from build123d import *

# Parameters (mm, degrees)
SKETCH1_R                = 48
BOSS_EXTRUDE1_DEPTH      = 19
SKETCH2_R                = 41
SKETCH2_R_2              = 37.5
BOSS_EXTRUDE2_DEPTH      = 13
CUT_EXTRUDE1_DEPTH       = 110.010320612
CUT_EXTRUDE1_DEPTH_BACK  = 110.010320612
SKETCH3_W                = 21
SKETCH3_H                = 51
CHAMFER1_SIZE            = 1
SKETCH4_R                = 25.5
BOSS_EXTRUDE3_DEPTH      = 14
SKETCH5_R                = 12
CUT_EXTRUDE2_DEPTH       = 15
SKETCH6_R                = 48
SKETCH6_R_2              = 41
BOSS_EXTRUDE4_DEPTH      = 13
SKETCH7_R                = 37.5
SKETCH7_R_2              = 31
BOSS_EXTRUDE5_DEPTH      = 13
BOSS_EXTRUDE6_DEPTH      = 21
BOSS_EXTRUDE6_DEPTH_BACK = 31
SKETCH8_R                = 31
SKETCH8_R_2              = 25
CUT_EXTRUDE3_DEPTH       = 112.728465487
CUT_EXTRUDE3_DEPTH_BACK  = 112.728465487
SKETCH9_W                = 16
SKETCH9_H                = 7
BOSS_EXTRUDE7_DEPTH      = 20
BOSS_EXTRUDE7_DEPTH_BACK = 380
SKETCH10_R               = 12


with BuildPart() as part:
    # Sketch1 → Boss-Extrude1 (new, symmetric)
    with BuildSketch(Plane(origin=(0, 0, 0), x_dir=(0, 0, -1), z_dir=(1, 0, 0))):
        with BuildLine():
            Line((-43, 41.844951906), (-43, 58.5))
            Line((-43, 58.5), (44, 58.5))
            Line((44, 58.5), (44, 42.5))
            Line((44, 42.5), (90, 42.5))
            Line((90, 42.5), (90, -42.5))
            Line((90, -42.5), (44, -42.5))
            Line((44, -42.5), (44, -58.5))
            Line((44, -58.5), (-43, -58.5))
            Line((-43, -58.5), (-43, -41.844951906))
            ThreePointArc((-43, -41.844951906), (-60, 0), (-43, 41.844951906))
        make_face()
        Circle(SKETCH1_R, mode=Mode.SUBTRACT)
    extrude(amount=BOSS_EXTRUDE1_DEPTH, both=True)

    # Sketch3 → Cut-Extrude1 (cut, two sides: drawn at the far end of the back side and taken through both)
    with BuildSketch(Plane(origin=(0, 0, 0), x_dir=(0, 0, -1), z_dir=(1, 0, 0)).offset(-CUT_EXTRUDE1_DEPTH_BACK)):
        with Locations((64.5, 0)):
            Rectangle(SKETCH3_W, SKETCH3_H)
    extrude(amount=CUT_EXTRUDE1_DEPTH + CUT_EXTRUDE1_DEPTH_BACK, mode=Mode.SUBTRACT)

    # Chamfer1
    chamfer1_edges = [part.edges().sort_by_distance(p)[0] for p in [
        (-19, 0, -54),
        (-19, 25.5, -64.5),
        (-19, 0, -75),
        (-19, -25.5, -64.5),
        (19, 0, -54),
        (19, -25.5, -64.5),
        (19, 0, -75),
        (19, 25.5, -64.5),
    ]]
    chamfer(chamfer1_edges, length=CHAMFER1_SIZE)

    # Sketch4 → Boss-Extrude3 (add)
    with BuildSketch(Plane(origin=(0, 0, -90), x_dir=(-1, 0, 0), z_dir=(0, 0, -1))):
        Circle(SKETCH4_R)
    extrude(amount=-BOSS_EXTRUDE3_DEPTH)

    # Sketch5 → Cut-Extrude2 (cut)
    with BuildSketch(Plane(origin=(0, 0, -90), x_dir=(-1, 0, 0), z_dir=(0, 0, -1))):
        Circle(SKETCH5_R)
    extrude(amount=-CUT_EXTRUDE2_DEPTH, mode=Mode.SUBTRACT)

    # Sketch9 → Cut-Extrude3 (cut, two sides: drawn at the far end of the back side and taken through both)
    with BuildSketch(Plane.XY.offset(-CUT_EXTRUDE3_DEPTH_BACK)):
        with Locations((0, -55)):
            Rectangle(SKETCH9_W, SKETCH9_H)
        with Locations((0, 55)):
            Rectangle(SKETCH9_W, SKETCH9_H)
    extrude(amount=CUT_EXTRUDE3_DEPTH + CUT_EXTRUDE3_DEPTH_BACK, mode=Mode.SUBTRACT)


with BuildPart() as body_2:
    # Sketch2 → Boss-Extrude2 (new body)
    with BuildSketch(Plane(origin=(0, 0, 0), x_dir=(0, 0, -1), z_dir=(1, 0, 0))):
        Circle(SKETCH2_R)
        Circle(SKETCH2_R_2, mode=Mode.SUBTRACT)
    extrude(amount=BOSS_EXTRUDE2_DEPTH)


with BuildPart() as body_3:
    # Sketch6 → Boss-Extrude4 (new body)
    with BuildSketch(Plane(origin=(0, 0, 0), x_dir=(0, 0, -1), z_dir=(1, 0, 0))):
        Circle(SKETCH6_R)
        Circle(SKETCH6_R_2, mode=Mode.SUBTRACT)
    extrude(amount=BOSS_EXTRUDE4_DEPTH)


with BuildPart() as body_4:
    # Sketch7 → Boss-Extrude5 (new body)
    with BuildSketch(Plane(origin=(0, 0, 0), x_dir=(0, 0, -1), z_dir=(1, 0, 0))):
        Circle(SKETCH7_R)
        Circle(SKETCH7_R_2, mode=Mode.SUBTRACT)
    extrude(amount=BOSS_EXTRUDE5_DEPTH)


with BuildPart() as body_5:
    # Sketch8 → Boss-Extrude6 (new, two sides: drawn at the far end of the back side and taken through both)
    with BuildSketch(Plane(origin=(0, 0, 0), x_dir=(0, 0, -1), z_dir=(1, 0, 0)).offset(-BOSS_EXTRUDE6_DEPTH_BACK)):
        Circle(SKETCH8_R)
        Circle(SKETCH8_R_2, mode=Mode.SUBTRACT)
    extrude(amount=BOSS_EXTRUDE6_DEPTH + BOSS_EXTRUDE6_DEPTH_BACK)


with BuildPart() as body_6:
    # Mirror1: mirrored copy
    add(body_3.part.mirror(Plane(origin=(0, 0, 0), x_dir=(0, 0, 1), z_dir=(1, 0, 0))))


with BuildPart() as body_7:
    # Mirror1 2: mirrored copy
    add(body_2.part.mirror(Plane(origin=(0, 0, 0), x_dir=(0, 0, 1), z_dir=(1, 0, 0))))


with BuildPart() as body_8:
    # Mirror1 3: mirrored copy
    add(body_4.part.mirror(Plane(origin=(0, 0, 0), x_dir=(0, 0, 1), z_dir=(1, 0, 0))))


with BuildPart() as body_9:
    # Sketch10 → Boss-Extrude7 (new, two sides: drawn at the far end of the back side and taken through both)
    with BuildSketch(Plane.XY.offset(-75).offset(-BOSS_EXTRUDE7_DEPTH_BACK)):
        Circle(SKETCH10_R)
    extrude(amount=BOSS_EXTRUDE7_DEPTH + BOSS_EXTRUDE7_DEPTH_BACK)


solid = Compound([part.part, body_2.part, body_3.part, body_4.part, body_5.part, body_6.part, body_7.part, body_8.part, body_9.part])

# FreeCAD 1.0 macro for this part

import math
import FreeCAD as App
import Part
import Sketcher
Q = App.Units.Quantity


def edges_at(feature, points):
    """Names of the edges that pass closest to the given points."""
    edges = feature.Shape.Edges
    near = lambda p: min(range(len(edges)), key=lambda i: edges[i].distToShape(Part.Vertex(*p))[0])
    return sorted({f"Edge{near(p) + 1}" for p in points})

doc = App.newDocument("Part")
body = doc.addObject("PartDesign::Body", "Body")

# Sketch on YZ plane
sketch1 = body.newObject("Sketcher::SketchObject", "Sketch")
sketch1.AttachmentSupport = (doc.getObject("YZ_Plane"), [""])
sketch1.MapMode = "FlatFace"
sketch1.addGeometry(Part.LineSegment(App.Vector(58, 43, 0), App.Vector(42, 43, 0)), False)
sketch1.addGeometry(Part.ArcOfCircle(Part.Circle(App.Vector(0, 0, 0), App.Vector(0, 0, 1), 60), math.radians(46), math.radians(134)), False)
sketch1.addGeometry(Part.LineSegment(App.Vector(-42, 43, 0), App.Vector(-58, 43, 0)), False)
sketch1.addGeometry(Part.LineSegment(App.Vector(-58, 43, 0), App.Vector(-58, -44, 0)), False)
sketch1.addGeometry(Part.LineSegment(App.Vector(-58, -44, 0), App.Vector(-42, -44, 0)), False)
sketch1.addGeometry(Part.LineSegment(App.Vector(-42, -44, 0), App.Vector(-42, -90, 0)), False)
sketch1.addGeometry(Part.LineSegment(App.Vector(-42, -90, 0), App.Vector(42, -90, 0)), False)
sketch1.addGeometry(Part.LineSegment(App.Vector(42, -90, 0), App.Vector(42, -44, 0)), False)
sketch1.addGeometry(Part.LineSegment(App.Vector(42, -44, 0), App.Vector(58, -44, 0)), False)
sketch1.addGeometry(Part.LineSegment(App.Vector(58, -44, 0), App.Vector(58, 43, 0)), False)
sketch1.addGeometry(Part.Circle(App.Vector(0, 0, 0), App.Vector(0, 0, 1), 48), False)
sketch1.addConstraint(Sketcher.Constraint("Coincident", 0, 2, 1, 1))
sketch1.addConstraint(Sketcher.Constraint("Coincident", 1, 2, 2, 1))
sketch1.addConstraint(Sketcher.Constraint("Coincident", 2, 2, 3, 1))
sketch1.addConstraint(Sketcher.Constraint("Coincident", 3, 2, 4, 1))
sketch1.addConstraint(Sketcher.Constraint("Coincident", 4, 2, 5, 1))
sketch1.addConstraint(Sketcher.Constraint("Coincident", 5, 2, 6, 1))
sketch1.addConstraint(Sketcher.Constraint("Coincident", 6, 2, 7, 1))
sketch1.addConstraint(Sketcher.Constraint("Coincident", 7, 2, 8, 1))
sketch1.addConstraint(Sketcher.Constraint("Coincident", 8, 2, 9, 1))
sketch1.addConstraint(Sketcher.Constraint("Coincident", 9, 2, 0, 1))
sketch1.addConstraint(Sketcher.Constraint("Horizontal", 0))
sketch1.addConstraint(Sketcher.Constraint("Horizontal", 2))
sketch1.addConstraint(Sketcher.Constraint("Vertical", 3))
sketch1.addConstraint(Sketcher.Constraint("Horizontal", 4))
sketch1.addConstraint(Sketcher.Constraint("Vertical", 5))
sketch1.addConstraint(Sketcher.Constraint("Horizontal", 6))
sketch1.addConstraint(Sketcher.Constraint("Vertical", 7))
sketch1.addConstraint(Sketcher.Constraint("Horizontal", 8))
sketch1.addConstraint(Sketcher.Constraint("Vertical", 9))
sketch1.addConstraint(Sketcher.Constraint("Coincident", 1, 3, -1, 1))
sketch1.addConstraint(Sketcher.Constraint("Coincident", 10, 3, -1, 1))
sketch1.addConstraint(Sketcher.Constraint("Symmetric", 4, 2, 7, 2, -2))
sketch1.addConstraint(Sketcher.Constraint("Symmetric", 2, 2, 9, 2, -2))
sketch1.addConstraint(Sketcher.Constraint("Diameter", 10, Q("96 mm")))
sketch1.addConstraint(Sketcher.Constraint("Radius", 1, Q("60 mm")))
sketch1.addConstraint(Sketcher.Constraint("DistanceX", 4, 1, 4, 2, Q("16 mm")))
sketch1.addConstraint(Sketcher.Constraint("DistanceX", 6, 1, 6, 2, Q("85 mm")))
sketch1.addConstraint(Sketcher.Constraint("DistanceY", 3, 2, 3, 1, Q("87 mm")))
sketch1.addConstraint(Sketcher.Constraint("DistanceY", 5, 2, 5, 1, Q("46 mm")))
sketch1.addConstraint(Sketcher.Constraint("DistanceY", -1, 1, 0, 2, Q("43 mm")))
pad1 = body.newObject("PartDesign::Pad", "Pad")
pad1.Profile = sketch1
pad1.Length = 38
pad1.Midplane = True

# Sketch on YZ plane
sketch2 = body.newObject("Sketcher::SketchObject", "Sketch001")
sketch2.AttachmentSupport = (doc.getObject("YZ_Plane"), [""])
sketch2.MapMode = "FlatFace"
sketch2.addGeometry(Part.LineSegment(App.Vector(26, -54, 0), App.Vector(-26, -54, 0)), False)
sketch2.addGeometry(Part.LineSegment(App.Vector(-26, -54, 0), App.Vector(-26, -75, 0)), False)
sketch2.addGeometry(Part.LineSegment(App.Vector(-26, -75, 0), App.Vector(26, -75, 0)), False)
sketch2.addGeometry(Part.LineSegment(App.Vector(26, -75, 0), App.Vector(26, -54, 0)), False)
sketch2.addConstraint(Sketcher.Constraint("Coincident", 0, 2, 1, 1))
sketch2.addConstraint(Sketcher.Constraint("Coincident", 1, 2, 2, 1))
sketch2.addConstraint(Sketcher.Constraint("Coincident", 2, 2, 3, 1))
sketch2.addConstraint(Sketcher.Constraint("Coincident", 3, 2, 0, 1))
sketch2.addConstraint(Sketcher.Constraint("Horizontal", 0))
sketch2.addConstraint(Sketcher.Constraint("Vertical", 1))
sketch2.addConstraint(Sketcher.Constraint("Horizontal", 2))
sketch2.addConstraint(Sketcher.Constraint("Vertical", 3))
sketch2.addConstraint(Sketcher.Constraint("DistanceX", 0, 2, 0, 1, Q("51 mm")))
sketch2.addConstraint(Sketcher.Constraint("DistanceY", 1, 2, 1, 1, Q("21 mm")))
sketch2.addConstraint(Sketcher.Constraint("DistanceY", 0, 2, -1, 1, Q("54 mm")))
sketch2.addConstraint(Sketcher.Constraint("DistanceX", 0, 2, -1, 1, Q("25.5 mm")))
pocket1 = body.newObject("PartDesign::Pocket", "Pocket")
pocket1.Profile = sketch2
pocket1.Type = "ThroughAll"
pocket1.Midplane = True
doc.recompute()

chamfer = body.newObject("PartDesign::Chamfer", "Chamfer")
chamfer.Base = (pocket1, edges_at(pocket1, [
    (-19, 0, -54),
    (-19, 25.5, -64.5),
    (-19, 0, -75),
    (-19, -25.5, -64.5),
    (19, 0, -54),
    (19, -25.5, -64.5),
    (19, 0, -75),
    (19, 25.5, -64.5),
]))
chamfer.Size = 1

# Sketch on XY plane
sketch3 = body.newObject("Sketcher::SketchObject", "Sketch002")
sketch3.AttachmentSupport = (doc.getObject("XY_Plane"), [""])
sketch3.MapMode = "FlatFace"
sketch3.AttachmentOffset = App.Placement(App.Vector(0, 0, -90), App.Rotation())
sketch3.addGeometry(Part.Circle(App.Vector(0, 0, 0), App.Vector(0, 0, 1), 26), False)
sketch3.addConstraint(Sketcher.Constraint("Coincident", 0, 3, -1, 1))
sketch3.addConstraint(Sketcher.Constraint("Diameter", 0, Q("51 mm")))
pad2 = body.newObject("PartDesign::Pad", "Pad001")
pad2.Profile = sketch3
pad2.Length = 14

# Sketch on XY plane
sketch4 = body.newObject("Sketcher::SketchObject", "Sketch003")
sketch4.AttachmentSupport = (doc.getObject("XY_Plane"), [""])
sketch4.MapMode = "FlatFace"
sketch4.AttachmentOffset = App.Placement(App.Vector(0, 0, -90), App.Rotation())
sketch4.addGeometry(Part.Circle(App.Vector(0, 0, 0), App.Vector(0, 0, 1), 12), False)
sketch4.addConstraint(Sketcher.Constraint("Coincident", 0, 3, -1, 1))
sketch4.addConstraint(Sketcher.Constraint("Diameter", 0, Q("24 mm")))
pocket2 = body.newObject("PartDesign::Pocket", "Pocket001")
pocket2.Profile = sketch4
pocket2.Length = 15
pocket2.Reversed = True

# Sketch on XY plane
sketch5 = body.newObject("Sketcher::SketchObject", "Sketch004")
sketch5.AttachmentSupport = (doc.getObject("XY_Plane"), [""])
sketch5.MapMode = "FlatFace"
sketch5.addGeometry(Part.LineSegment(App.Vector(-8, -52, 0), App.Vector(-8, -58, 0)), False)
sketch5.addGeometry(Part.LineSegment(App.Vector(-8, -58, 0), App.Vector(8, -58, 0)), False)
sketch5.addGeometry(Part.LineSegment(App.Vector(8, -58, 0), App.Vector(8, -52, 0)), False)
sketch5.addGeometry(Part.LineSegment(App.Vector(8, -52, 0), App.Vector(-8, -52, 0)), False)
sketch5.addGeometry(Part.LineSegment(App.Vector(-8, 58, 0), App.Vector(-8, 52, 0)), False)
sketch5.addGeometry(Part.LineSegment(App.Vector(-8, 52, 0), App.Vector(8, 52, 0)), False)
sketch5.addGeometry(Part.LineSegment(App.Vector(8, 52, 0), App.Vector(8, 58, 0)), False)
sketch5.addGeometry(Part.LineSegment(App.Vector(8, 58, 0), App.Vector(-8, 58, 0)), False)
sketch5.addConstraint(Sketcher.Constraint("Coincident", 0, 2, 1, 1))
sketch5.addConstraint(Sketcher.Constraint("Coincident", 1, 2, 2, 1))
sketch5.addConstraint(Sketcher.Constraint("Coincident", 2, 2, 3, 1))
sketch5.addConstraint(Sketcher.Constraint("Coincident", 3, 2, 0, 1))
sketch5.addConstraint(Sketcher.Constraint("Coincident", 4, 2, 5, 1))
sketch5.addConstraint(Sketcher.Constraint("Coincident", 5, 2, 6, 1))
sketch5.addConstraint(Sketcher.Constraint("Coincident", 6, 2, 7, 1))
sketch5.addConstraint(Sketcher.Constraint("Coincident", 7, 2, 4, 1))
sketch5.addConstraint(Sketcher.Constraint("Vertical", 0))
sketch5.addConstraint(Sketcher.Constraint("Horizontal", 1))
sketch5.addConstraint(Sketcher.Constraint("Vertical", 2))
sketch5.addConstraint(Sketcher.Constraint("Horizontal", 3))
sketch5.addConstraint(Sketcher.Constraint("Vertical", 4))
sketch5.addConstraint(Sketcher.Constraint("Horizontal", 5))
sketch5.addConstraint(Sketcher.Constraint("Vertical", 6))
sketch5.addConstraint(Sketcher.Constraint("Horizontal", 7))
sketch5.addConstraint(Sketcher.Constraint("Symmetric", 2, 2, 4, 2, -1, 1))
sketch5.addConstraint(Sketcher.Constraint("Symmetric", 0, 2, 6, 2, -1, 1))
sketch5.addConstraint(Sketcher.Constraint("Vertical", 3, 2, 4, 2))
sketch5.addConstraint(Sketcher.Constraint("DistanceX", 1, 1, 1, 2, Q("16 mm")))
sketch5.addConstraint(Sketcher.Constraint("DistanceY", 0, 2, 0, 1, Q("7 mm")))
sketch5.addConstraint(Sketcher.Constraint("DistanceY", 3, 2, 4, 2, Q("103 mm")))
pocket3 = body.newObject("PartDesign::Pocket", "Pocket002")
pocket3.Profile = sketch5
pocket3.Type = "ThroughAll"
pocket3.Midplane = True
body2 = doc.addObject("PartDesign::Body", "Body001")

# Sketch on YZ plane
sketch6 = body2.newObject("Sketcher::SketchObject", "Sketch005")
sketch6.AttachmentSupport = (doc.getObject("YZ_Plane001"), [""])
sketch6.MapMode = "FlatFace"
sketch6.addGeometry(Part.Circle(App.Vector(0, 0, 0), App.Vector(0, 0, 1), 41), False)
sketch6.addGeometry(Part.Circle(App.Vector(0, 0, 0), App.Vector(0, 0, 1), 38), False)
sketch6.addConstraint(Sketcher.Constraint("Coincident", 0, 3, -1, 1))
sketch6.addConstraint(Sketcher.Constraint("Coincident", 1, 3, -1, 1))
sketch6.addConstraint(Sketcher.Constraint("Diameter", 0, Q("82 mm")))
sketch6.addConstraint(Sketcher.Constraint("Diameter", 1, Q("75 mm")))
pad3 = body2.newObject("PartDesign::Pad", "Pad002")
pad3.Profile = sketch6
pad3.Length = 13
body3 = doc.addObject("PartDesign::Body", "Body002")

# Sketch on YZ plane
sketch7 = body3.newObject("Sketcher::SketchObject", "Sketch006")
sketch7.AttachmentSupport = (doc.getObject("YZ_Plane002"), [""])
sketch7.MapMode = "FlatFace"
sketch7.addGeometry(Part.Circle(App.Vector(0, 0, 0), App.Vector(0, 0, 1), 48), False)
sketch7.addGeometry(Part.Circle(App.Vector(0, 0, 0), App.Vector(0, 0, 1), 41), False)
sketch7.addConstraint(Sketcher.Constraint("Coincident", 0, 3, -1, 1))
sketch7.addConstraint(Sketcher.Constraint("Coincident", 1, 3, -1, 1))
sketch7.addConstraint(Sketcher.Constraint("Diameter", 0, Q("96 mm")))
sketch7.addConstraint(Sketcher.Constraint("Diameter", 1, Q("82 mm")))
pad4 = body3.newObject("PartDesign::Pad", "Pad003")
pad4.Profile = sketch7
pad4.Length = 13
body4 = doc.addObject("PartDesign::Body", "Body003")

# Sketch on YZ plane
sketch8 = body4.newObject("Sketcher::SketchObject", "Sketch007")
sketch8.AttachmentSupport = (doc.getObject("YZ_Plane003"), [""])
sketch8.MapMode = "FlatFace"
sketch8.addGeometry(Part.Circle(App.Vector(0, 0, 0), App.Vector(0, 0, 1), 38), False)
sketch8.addGeometry(Part.Circle(App.Vector(0, 0, 0), App.Vector(0, 0, 1), 31), False)
sketch8.addConstraint(Sketcher.Constraint("Coincident", 0, 3, -1, 1))
sketch8.addConstraint(Sketcher.Constraint("Coincident", 1, 3, -1, 1))
sketch8.addConstraint(Sketcher.Constraint("Diameter", 0, Q("75 mm")))
sketch8.addConstraint(Sketcher.Constraint("Diameter", 1, Q("62 mm")))
pad5 = body4.newObject("PartDesign::Pad", "Pad004")
pad5.Profile = sketch8
pad5.Length = 13
body5 = doc.addObject("PartDesign::Body", "Body004")

# Sketch on YZ plane
sketch9 = body5.newObject("Sketcher::SketchObject", "Sketch008")
sketch9.AttachmentSupport = (doc.getObject("YZ_Plane004"), [""])
sketch9.MapMode = "FlatFace"
sketch9.addGeometry(Part.Circle(App.Vector(0, 0, 0), App.Vector(0, 0, 1), 31), False)
sketch9.addGeometry(Part.Circle(App.Vector(0, 0, 0), App.Vector(0, 0, 1), 25), False)
sketch9.addConstraint(Sketcher.Constraint("Coincident", 0, 3, -1, 1))
sketch9.addConstraint(Sketcher.Constraint("Coincident", 1, 3, -1, 1))
sketch9.addConstraint(Sketcher.Constraint("Diameter", 0, Q("62 mm")))
sketch9.addConstraint(Sketcher.Constraint("Diameter", 1, Q("50 mm")))
pad6 = body5.newObject("PartDesign::Pad", "Pad005")
pad6.Profile = sketch9
pad6.Type = "TwoLengths"
pad6.Length = 21
pad6.Length2 = 31
body6 = doc.addObject("PartDesign::Body", "Body005")
doc.recompute()

mirroring = doc.addObject("Part::Mirroring", "Mirroring")
mirroring.Source = body3
mirroring.Base = App.Vector(0, 0, 0)
mirroring.Normal = App.Vector(1, 0, 0)
body6.BaseFeature = mirroring
doc.recompute()
body7 = doc.addObject("PartDesign::Body", "Body006")
doc.recompute()

mirroring2 = doc.addObject("Part::Mirroring", "Mirroring001")
mirroring2.Source = body2
mirroring2.Base = App.Vector(0, 0, 0)
mirroring2.Normal = App.Vector(1, 0, 0)
body7.BaseFeature = mirroring2
doc.recompute()
body8 = doc.addObject("PartDesign::Body", "Body007")
doc.recompute()

mirroring3 = doc.addObject("Part::Mirroring", "Mirroring002")
mirroring3.Source = body4
mirroring3.Base = App.Vector(0, 0, 0)
mirroring3.Normal = App.Vector(1, 0, 0)
body8.BaseFeature = mirroring3
doc.recompute()
body9 = doc.addObject("PartDesign::Body", "Body008")

# Sketch on XY plane
sketch10 = body9.newObject("Sketcher::SketchObject", "Sketch009")
sketch10.AttachmentSupport = (doc.getObject("XY_Plane008"), [""])
sketch10.MapMode = "FlatFace"
sketch10.AttachmentOffset = App.Placement(App.Vector(0, 0, -75), App.Rotation())
sketch10.addGeometry(Part.Circle(App.Vector(0, 0, 0), App.Vector(0, 0, 1), 12), False)
sketch10.addConstraint(Sketcher.Constraint("Coincident", 0, 3, -1, 1))
sketch10.addConstraint(Sketcher.Constraint("Diameter", 0, Q("24 mm")))
pad7 = body9.newObject("PartDesign::Pad", "Pad006")
pad7.Profile = sketch10
pad7.Type = "TwoLengths"
pad7.Length = 20
pad7.Length2 = 380
mirroring.Visibility = False
mirroring2.Visibility = False
mirroring3.Visibility = False

doc.recompute()
